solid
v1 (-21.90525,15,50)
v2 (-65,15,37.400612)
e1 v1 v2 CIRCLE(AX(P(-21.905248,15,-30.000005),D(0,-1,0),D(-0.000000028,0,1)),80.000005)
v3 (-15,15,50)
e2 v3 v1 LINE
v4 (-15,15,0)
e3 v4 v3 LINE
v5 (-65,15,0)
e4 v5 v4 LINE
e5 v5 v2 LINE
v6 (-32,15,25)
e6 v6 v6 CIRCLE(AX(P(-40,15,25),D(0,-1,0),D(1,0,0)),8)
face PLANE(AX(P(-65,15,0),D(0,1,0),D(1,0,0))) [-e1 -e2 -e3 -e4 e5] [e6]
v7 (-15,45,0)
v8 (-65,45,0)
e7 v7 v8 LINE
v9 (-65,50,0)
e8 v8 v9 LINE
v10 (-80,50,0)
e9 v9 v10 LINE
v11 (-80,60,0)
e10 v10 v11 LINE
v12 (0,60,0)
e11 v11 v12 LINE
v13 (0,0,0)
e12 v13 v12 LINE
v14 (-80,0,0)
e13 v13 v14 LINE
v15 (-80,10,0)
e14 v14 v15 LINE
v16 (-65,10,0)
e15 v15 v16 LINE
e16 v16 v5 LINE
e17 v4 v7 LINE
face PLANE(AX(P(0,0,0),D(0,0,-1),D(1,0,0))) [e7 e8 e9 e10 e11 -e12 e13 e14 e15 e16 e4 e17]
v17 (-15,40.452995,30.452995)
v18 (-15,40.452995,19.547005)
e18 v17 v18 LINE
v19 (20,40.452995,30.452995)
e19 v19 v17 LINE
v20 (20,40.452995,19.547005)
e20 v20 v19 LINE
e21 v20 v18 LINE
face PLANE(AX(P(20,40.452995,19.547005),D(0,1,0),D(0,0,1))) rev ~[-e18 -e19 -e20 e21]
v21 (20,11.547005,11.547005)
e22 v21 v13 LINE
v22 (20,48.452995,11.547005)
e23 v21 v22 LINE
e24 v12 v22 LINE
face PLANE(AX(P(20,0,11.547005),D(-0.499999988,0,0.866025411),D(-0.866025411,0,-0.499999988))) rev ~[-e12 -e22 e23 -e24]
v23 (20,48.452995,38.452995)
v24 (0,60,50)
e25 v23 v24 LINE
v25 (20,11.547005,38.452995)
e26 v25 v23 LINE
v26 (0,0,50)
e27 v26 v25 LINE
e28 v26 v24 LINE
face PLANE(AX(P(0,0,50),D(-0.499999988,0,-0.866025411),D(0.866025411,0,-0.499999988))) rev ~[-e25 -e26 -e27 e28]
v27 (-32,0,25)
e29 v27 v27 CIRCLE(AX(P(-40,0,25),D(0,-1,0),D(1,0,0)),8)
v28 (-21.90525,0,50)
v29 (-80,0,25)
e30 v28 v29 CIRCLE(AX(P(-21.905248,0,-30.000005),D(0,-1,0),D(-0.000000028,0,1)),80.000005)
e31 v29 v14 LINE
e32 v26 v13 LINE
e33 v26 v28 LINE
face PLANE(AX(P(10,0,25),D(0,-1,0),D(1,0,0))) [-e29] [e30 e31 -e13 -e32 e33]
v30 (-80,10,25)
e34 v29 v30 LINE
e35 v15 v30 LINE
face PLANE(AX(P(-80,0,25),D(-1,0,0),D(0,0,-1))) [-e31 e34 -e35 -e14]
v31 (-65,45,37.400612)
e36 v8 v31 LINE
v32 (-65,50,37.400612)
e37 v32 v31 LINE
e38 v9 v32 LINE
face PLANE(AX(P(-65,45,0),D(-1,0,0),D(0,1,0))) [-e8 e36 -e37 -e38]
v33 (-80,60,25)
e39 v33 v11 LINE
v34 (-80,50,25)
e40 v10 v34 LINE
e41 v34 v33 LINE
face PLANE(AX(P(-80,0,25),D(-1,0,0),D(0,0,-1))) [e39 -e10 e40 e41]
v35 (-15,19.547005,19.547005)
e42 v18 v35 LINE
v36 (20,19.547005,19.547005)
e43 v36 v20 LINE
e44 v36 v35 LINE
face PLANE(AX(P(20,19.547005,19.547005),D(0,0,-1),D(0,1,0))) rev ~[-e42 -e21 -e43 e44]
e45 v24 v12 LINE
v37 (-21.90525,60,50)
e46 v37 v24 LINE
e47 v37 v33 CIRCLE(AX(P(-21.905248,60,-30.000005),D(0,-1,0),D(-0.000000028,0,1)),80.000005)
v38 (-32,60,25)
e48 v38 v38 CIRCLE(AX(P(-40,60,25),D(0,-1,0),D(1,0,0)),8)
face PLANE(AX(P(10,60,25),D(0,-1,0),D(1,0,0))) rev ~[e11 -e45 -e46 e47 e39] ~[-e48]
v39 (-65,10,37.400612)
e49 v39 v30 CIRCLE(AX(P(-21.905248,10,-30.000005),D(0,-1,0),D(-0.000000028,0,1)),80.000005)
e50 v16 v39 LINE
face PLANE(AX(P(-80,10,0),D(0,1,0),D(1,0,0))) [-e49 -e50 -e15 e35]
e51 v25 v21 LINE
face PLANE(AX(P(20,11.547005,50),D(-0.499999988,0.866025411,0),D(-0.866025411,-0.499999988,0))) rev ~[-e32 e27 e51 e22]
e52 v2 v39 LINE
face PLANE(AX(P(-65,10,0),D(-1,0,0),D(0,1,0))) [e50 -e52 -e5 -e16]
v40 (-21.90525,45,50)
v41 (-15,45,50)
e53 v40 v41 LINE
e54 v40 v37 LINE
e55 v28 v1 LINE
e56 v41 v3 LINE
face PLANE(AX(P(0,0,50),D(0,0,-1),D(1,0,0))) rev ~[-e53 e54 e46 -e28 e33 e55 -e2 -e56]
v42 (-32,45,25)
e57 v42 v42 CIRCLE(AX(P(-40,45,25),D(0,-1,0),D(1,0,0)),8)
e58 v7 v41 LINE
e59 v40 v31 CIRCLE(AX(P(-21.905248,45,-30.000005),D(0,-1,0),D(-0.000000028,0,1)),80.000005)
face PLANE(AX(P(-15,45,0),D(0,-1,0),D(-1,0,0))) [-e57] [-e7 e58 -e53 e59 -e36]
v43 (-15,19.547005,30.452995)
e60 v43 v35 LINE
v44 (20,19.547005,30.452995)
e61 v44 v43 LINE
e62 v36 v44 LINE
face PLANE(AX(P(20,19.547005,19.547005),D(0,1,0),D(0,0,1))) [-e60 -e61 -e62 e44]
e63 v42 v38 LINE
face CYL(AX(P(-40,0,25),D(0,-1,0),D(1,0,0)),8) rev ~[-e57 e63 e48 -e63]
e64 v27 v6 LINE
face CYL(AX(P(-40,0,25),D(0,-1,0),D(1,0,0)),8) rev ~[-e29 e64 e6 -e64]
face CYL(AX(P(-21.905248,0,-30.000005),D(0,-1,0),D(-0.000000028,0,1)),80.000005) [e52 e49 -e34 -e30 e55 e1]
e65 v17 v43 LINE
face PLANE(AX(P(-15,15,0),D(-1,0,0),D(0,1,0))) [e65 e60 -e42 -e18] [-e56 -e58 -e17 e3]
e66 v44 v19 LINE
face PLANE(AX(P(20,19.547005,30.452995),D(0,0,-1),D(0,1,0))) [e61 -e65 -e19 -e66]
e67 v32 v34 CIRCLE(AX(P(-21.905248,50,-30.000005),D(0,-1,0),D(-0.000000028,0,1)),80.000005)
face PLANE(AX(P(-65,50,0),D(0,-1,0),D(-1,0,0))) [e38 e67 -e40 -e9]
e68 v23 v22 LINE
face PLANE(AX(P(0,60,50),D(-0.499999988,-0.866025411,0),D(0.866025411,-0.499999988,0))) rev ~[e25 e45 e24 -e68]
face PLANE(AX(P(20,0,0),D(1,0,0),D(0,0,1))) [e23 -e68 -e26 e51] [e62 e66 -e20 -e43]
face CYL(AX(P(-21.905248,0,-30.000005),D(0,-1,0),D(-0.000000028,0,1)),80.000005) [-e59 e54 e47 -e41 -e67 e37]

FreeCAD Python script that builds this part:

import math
import FreeCAD as App
import Part
import Sketcher
Q = App.Units.Quantity

doc = App.newDocument("Part")
body = doc.addObject("PartDesign::Body", "Body")

sketch1 = body.newObject("Sketcher::SketchObject", "Sketch")
sketch1.AttachmentSupport = (doc.getObject("XZ_Plane"), [""])
sketch1.MapMode = "FlatFace"
sketch1.addGeometry([
    Part.LineSegment(App.Vector(-80, 0, 0), App.Vector(0, 0, 0)),
    Part.LineSegment(App.Vector(0, 0, 0), App.Vector(0, 50, 0)),
    Part.LineSegment(App.Vector(0, 50, 0), App.Vector(-22, 50, 0)),
    Part.ArcOfCircle(Part.Circle(App.Vector(-22, -30, 0), App.Vector(0, 0, 1), 80), math.radians(90), math.radians(137)),
    Part.LineSegment(App.Vector(-80, 25, 0), App.Vector(-80, 0, 0)),
    Part.Circle(App.Vector(-40, 25, 0), App.Vector(0, 0, 1), 8),
], False)
sketch1.addConstraint([
    Sketcher.Constraint("Coincident", 0, 2, 1, 1),
    Sketcher.Constraint("Coincident", 1, 2, 2, 1),
    Sketcher.Constraint("Tangent", 2, 2, 3, 1),
    Sketcher.Constraint("Coincident", 3, 2, 4, 1),
    Sketcher.Constraint("Coincident", 4, 2, 0, 1),
    Sketcher.Constraint("Horizontal", 0),
    Sketcher.Constraint("Vertical", 1),
    Sketcher.Constraint("Horizontal", 2),
    Sketcher.Constraint("Vertical", 4),
    Sketcher.Constraint("Coincident", 0, 2, -1, 1),
    Sketcher.Constraint("Horizontal", 5, 3, 3, 2),
    Sketcher.Constraint("Diameter", 5, 16.0),
    Sketcher.Constraint("DistanceX", 0, 1, 0, 2, 80.0),
    Sketcher.Constraint("DistanceY", 1, 1, 1, 2, 50.0),
    Sketcher.Constraint("DistanceY", 4, 2, 4, 1, 25.0),
    Sketcher.Constraint("DistanceX", 5, 3, -1, 1, 40.0),
    Sketcher.Constraint("Radius", 3, 80.000005),
])
pad1 = body.newObject("PartDesign::Pad", "Pad")
pad1.Profile = sketch1
pad1.Length = 60
pad1.Reversed = True

sketch2 = body.newObject("Sketcher::SketchObject", "Sketch001")
sketch2.AttachmentSupport = (doc.getObject("XY_Plane"), [""])
sketch2.MapMode = "FlatFace"
sketch2.addGeometry([
    Part.LineSegment(App.Vector(-80, 10, 0), App.Vector(-65, 10, 0)),
    Part.LineSegment(App.Vector(-65, 10, 0), App.Vector(-65, 15, 0)),
    Part.LineSegment(App.Vector(-65, 15, 0), App.Vector(-15, 15, 0)),
    Part.LineSegment(App.Vector(-15, 15, 0), App.Vector(-15, 45, 0)),
    Part.LineSegment(App.Vector(-15, 45, 0), App.Vector(-65, 45, 0)),
    Part.LineSegment(App.Vector(-65, 45, 0), App.Vector(-65, 50, 0)),
    Part.LineSegment(App.Vector(-65, 50, 0), App.Vector(-80, 50, 0)),
    Part.LineSegment(App.Vector(-80, 50, 0), App.Vector(-80, 10, 0)),
], False)
sketch2.addConstraint([
    Sketcher.Constraint("Coincident", 0, 2, 1, 1),
    Sketcher.Constraint("Coincident", 1, 2, 2, 1),
    Sketcher.Constraint("Coincident", 2, 2, 3, 1),
    Sketcher.Constraint("Coincident", 3, 2, 4, 1),
    Sketcher.Constraint("Coincident", 4, 2, 5, 1),
    Sketcher.Constraint("Coincident", 5, 2, 6, 1),
    Sketcher.Constraint("Coincident", 6, 2, 7, 1),
    Sketcher.Constraint("Coincident", 7, 2, 0, 1),
    Sketcher.Constraint("Horizontal", 0),
    Sketcher.Constraint("Vertical", 1),
    Sketcher.Constraint("Horizontal", 2),
    Sketcher.Constraint("Vertical", 3),
    Sketcher.Constraint("Horizontal", 4),
    Sketcher.Constraint("Vertical", 5),
    Sketcher.Constraint("Horizontal", 6),
    Sketcher.Constraint("Vertical", 7),
    Sketcher.Constraint("Vertical", 1, 2, 4, 2),
    Sketcher.Constraint("Equal", 1, 5),
    Sketcher.Constraint("DistanceX", 0, 1, 0, 2, 15.0),
    Sketcher.Constraint("DistanceX", 2, 1, 2, 2, 50.0),
    Sketcher.Constraint("DistanceY", 1, 1, 1, 2, 5.0),
    Sketcher.Constraint("DistanceY", 3, 1, 3, 2, 30.0),
    Sketcher.Constraint("DistanceX", 0, 2, -1, 1, 65.0),
    Sketcher.Constraint("DistanceY", -1, 1, 0, 2, 10.0),
])
pocket1 = body.newObject("PartDesign::Pocket", "Pocket")
pocket1.Profile = sketch2
pocket1.Type = "ThroughAll"
pocket1.Reversed = True

sketch3 = body.newObject("Sketcher::SketchObject", "Sketch002")
sketch3.AttachmentSupport = (doc.getObject("XZ_Plane"), [""])
sketch3.MapMode = "FlatFace"
sketch3.addGeometry([
    Part.LineSegment(App.Vector(0, 50, 0), App.Vector(0, 0, 0)),
    Part.LineSegment(App.Vector(0, 0, 0), App.Vector(20, 0, 0)),
    Part.LineSegment(App.Vector(20, 0, 0), App.Vector(20, 50, 0)),
    Part.LineSegment(App.Vector(20, 50, 0), App.Vector(0, 50, 0)),
], False)
sketch3.addConstraint([
    Sketcher.Constraint("Coincident", 0, 2, 1, 1),
    Sketcher.Constraint("Coincident", 1, 2, 2, 1),
    Sketcher.Constraint("Coincident", 2, 2, 3, 1),
    Sketcher.Constraint("Coincident", 3, 2, 0, 1),
    Sketcher.Constraint("Vertical", 0),
    Sketcher.Constraint("Horizontal", 1),
    Sketcher.Constraint("Vertical", 2),
    Sketcher.Constraint("Horizontal", 3),
    Sketcher.Constraint("Coincident", 0, 2, -1, 1),
    Sketcher.Constraint("DistanceX", 1, 1, 1, 2, 20.0),
    Sketcher.Constraint("DistanceY", 0, 2, 0, 1, 50.0),
])
pad2 = body.newObject("PartDesign::Pad", "Pad001")
pad2.Profile = sketch3
pad2.Length = 60
pad2.Reversed = True

sketch4 = body.newObject("Sketcher::SketchObject", "Sketch003")
sketch4.AttachmentSupport = (doc.getObject("XZ_Plane"), [""])
sketch4.MapMode = "FlatFace"
sketch4.addGeometry([
    Part.LineSegment(App.Vector(20, 50, 0), App.Vector(0, 50, 0)),
    Part.LineSegment(App.Vector(0, 50, 0), App.Vector(20, 38, 0)),
    Part.LineSegment(App.Vector(20, 38, 0), App.Vector(20, 50, 0)),
    Part.LineSegment(App.Vector(20, 12, 0), App.Vector(0, 0, 0)),
    Part.LineSegment(App.Vector(0, 0, 0), App.Vector(20, 0, 0)),
    Part.LineSegment(App.Vector(20, 0, 0), App.Vector(20, 12, 0)),
], False)
sketch4.addConstraint([
    Sketcher.Constraint("Coincident", 0, 2, 1, 1),
    Sketcher.Constraint("Coincident", 1, 2, 2, 1),
    Sketcher.Constraint("Coincident", 2, 2, 0, 1),
    Sketcher.Constraint("Coincident", 3, 2, 4, 1),
    Sketcher.Constraint("Coincident", 4, 2, 5, 1),
    Sketcher.Constraint("Coincident", 5, 2, 3, 1),
    Sketcher.Constraint("Horizontal", 0),
    Sketcher.Constraint("Vertical", 2),
    Sketcher.Constraint("Horizontal", 4),
    Sketcher.Constraint("Vertical", 5),
    Sketcher.Constraint("Coincident", 3, 2, -1, 1),
    Sketcher.Constraint("PointOnObject", 0, 2, -2),
    Sketcher.Constraint("Vertical", 2, 2, 4, 2),
    Sketcher.Constraint("Equal", 2, 5),
    Sketcher.Constraint("DistanceX", 0, 2, 0, 1, 20.0),
    Sketcher.Constraint("Angle", 1, Q("-29.999999 deg")),
    Sketcher.Constraint("DistanceY", -1, 1, 0, 2, 50.0),
])
pocket2 = body.newObject("PartDesign::Pocket", "Pocket001")
pocket2.Profile = sketch4
pocket2.Type = "ThroughAll"

sketch5 = body.newObject("Sketcher::SketchObject", "Sketch004")
sketch5.AttachmentSupport = (doc.getObject("XY_Plane"), [""])
sketch5.MapMode = "FlatFace"
sketch5.AttachmentOffset = App.Placement(App.Vector(0, 0, 50), App.Rotation())
sketch5.addGeometry([
    Part.LineSegment(App.Vector(20, 12, 0), App.Vector(0, 0, 0)),
    Part.LineSegment(App.Vector(0, 0, 0), App.Vector(20, 0, 0)),
    Part.LineSegment(App.Vector(20, 0, 0), App.Vector(20, 12, 0)),
    Part.LineSegment(App.Vector(20, 60, 0), App.Vector(0, 60, 0)),
    Part.LineSegment(App.Vector(0, 60, 0), App.Vector(20, 48, 0)),
    Part.LineSegment(App.Vector(20, 48, 0), App.Vector(20, 60, 0)),
], False)
sketch5.addConstraint([
    Sketcher.Constraint("Coincident", 0, 2, 1, 1),
    Sketcher.Constraint("Coincident", 1, 2, 2, 1),
    Sketcher.Constraint("Coincident", 2, 2, 0, 1),
    Sketcher.Constraint("Coincident", 3, 2, 4, 1),
    Sketcher.Constraint("Coincident", 4, 2, 5, 1),
    Sketcher.Constraint("Coincident", 5, 2, 3, 1),
    Sketcher.Constraint("Horizontal", 1),
    Sketcher.Constraint("Vertical", 2),
    Sketcher.Constraint("Horizontal", 3),
    Sketcher.Constraint("Vertical", 5),
    Sketcher.Constraint("Coincident", 0, 2, -1, 1),
    Sketcher.Constraint("PointOnObject", 3, 2, -2),
    Sketcher.Constraint("Vertical", 2, 2, 4, 2),
    Sketcher.Constraint("Equal", 2, 5),
    Sketcher.Constraint("DistanceX", 1, 1, 1, 2, 20.0),
    Sketcher.Constraint("Angle", 0, Q("-150.000001 deg")),
    Sketcher.Constraint("DistanceY", -1, 1, 3, 2, 60.0),
])
pocket3 = body.newObject("PartDesign::Pocket", "Pocket002")
pocket3.Profile = sketch5
pocket3.Type = "ThroughAll"

sketch6 = body.newObject("Sketcher::SketchObject", "Sketch005")
sketch6.AttachmentSupport = (doc.getObject("XY_Plane"), [""])
sketch6.MapMode = "FlatFace"
sketch6.addGeometry([
    Part.LineSegment(App.Vector(20, 12, 0), App.Vector(0, 0, 0)),
    Part.LineSegment(App.Vector(0, 0, 0), App.Vector(20, 0, 0)),
    Part.LineSegment(App.Vector(20, 0, 0), App.Vector(20, 12, 0)),
    Part.LineSegment(App.Vector(20, 60, 0), App.Vector(0, 60, 0)),
    Part.LineSegment(App.Vector(0, 60, 0), App.Vector(20, 48, 0)),
    Part.LineSegment(App.Vector(20, 48, 0), App.Vector(20, 60, 0)),
], False)
sketch6.addConstraint([
    Sketcher.Constraint("Coincident", 0, 2, 1, 1),
    Sketcher.Constraint("Coincident", 1, 2, 2, 1),
    Sketcher.Constraint("Coincident", 2, 2, 0, 1),
    Sketcher.Constraint("Coincident", 3, 2, 4, 1),
    Sketcher.Constraint("Coincident", 4, 2, 5, 1),
    Sketcher.Constraint("Coincident", 5, 2, 3, 1),
    Sketcher.Constraint("Horizontal", 1),
    Sketcher.Constraint("Vertical", 2),
    Sketcher.Constraint("Horizontal", 3),
    Sketcher.Constraint("Vertical", 5),
    Sketcher.Constraint("Coincident", 0, 2, -1, 1),
    Sketcher.Constraint("PointOnObject", 3, 2, -2),
    Sketcher.Constraint("Vertical", 2, 2, 4, 2),
    Sketcher.Constraint("Equal", 2, 5),
    Sketcher.Constraint("DistanceX", 1, 1, 1, 2, 20.0),
    Sketcher.Constraint("Angle", 0, Q("-150.000001 deg")),
    Sketcher.Constraint("DistanceY", -1, 1, 3, 2, 60.0),
])
pocket4 = body.newObject("PartDesign::Pocket", "Pocket003")
pocket4.Profile = sketch6
pocket4.Type = "ThroughAll"
pocket4.Reversed = True

sketch7 = body.newObject("Sketcher::SketchObject", "Sketch006")
sketch7.AttachmentSupport = (doc.getObject("YZ_Plane"), [""])
sketch7.MapMode = "FlatFace"
sketch7.AttachmentOffset = App.Placement(App.Vector(0, 0, 20), App.Rotation())
sketch7.addGeometry([
    Part.LineSegment(App.Vector(20, 30, 0), App.Vector(20, 20, 0)),
    Part.LineSegment(App.Vector(20, 20, 0), App.Vector(40, 20, 0)),
    Part.LineSegment(App.Vector(40, 20, 0), App.Vector(40, 30, 0)),
    Part.LineSegment(App.Vector(40, 30, 0), App.Vector(20, 30, 0)),
], False)
sketch7.addConstraint([
    Sketcher.Constraint("Coincident", 0, 2, 1, 1),
    Sketcher.Constraint("Coincident", 1, 2, 2, 1),
    Sketcher.Constraint("Coincident", 2, 2, 3, 1),
    Sketcher.Constraint("Coincident", 3, 2, 0, 1),
    Sketcher.Constraint("Vertical", 0),
    Sketcher.Constraint("Horizontal", 1),
    Sketcher.Constraint("Vertical", 2),
    Sketcher.Constraint("Horizontal", 3),
    Sketcher.Constraint("DistanceX", 1, 1, 1, 2, 20.90599),
    Sketcher.Constraint("DistanceY", 0, 2, 0, 1, 10.90599),
    Sketcher.Constraint("DistanceX", -1, 1, 0, 2, 19.547005),
    Sketcher.Constraint("DistanceY", -1, 1, 0, 2, 19.547005),
])
pocket5 = body.newObject("PartDesign::Pocket", "Pocket004")
pocket5.Profile = sketch7
pocket5.Type = "ThroughAll"

doc.recompute()
